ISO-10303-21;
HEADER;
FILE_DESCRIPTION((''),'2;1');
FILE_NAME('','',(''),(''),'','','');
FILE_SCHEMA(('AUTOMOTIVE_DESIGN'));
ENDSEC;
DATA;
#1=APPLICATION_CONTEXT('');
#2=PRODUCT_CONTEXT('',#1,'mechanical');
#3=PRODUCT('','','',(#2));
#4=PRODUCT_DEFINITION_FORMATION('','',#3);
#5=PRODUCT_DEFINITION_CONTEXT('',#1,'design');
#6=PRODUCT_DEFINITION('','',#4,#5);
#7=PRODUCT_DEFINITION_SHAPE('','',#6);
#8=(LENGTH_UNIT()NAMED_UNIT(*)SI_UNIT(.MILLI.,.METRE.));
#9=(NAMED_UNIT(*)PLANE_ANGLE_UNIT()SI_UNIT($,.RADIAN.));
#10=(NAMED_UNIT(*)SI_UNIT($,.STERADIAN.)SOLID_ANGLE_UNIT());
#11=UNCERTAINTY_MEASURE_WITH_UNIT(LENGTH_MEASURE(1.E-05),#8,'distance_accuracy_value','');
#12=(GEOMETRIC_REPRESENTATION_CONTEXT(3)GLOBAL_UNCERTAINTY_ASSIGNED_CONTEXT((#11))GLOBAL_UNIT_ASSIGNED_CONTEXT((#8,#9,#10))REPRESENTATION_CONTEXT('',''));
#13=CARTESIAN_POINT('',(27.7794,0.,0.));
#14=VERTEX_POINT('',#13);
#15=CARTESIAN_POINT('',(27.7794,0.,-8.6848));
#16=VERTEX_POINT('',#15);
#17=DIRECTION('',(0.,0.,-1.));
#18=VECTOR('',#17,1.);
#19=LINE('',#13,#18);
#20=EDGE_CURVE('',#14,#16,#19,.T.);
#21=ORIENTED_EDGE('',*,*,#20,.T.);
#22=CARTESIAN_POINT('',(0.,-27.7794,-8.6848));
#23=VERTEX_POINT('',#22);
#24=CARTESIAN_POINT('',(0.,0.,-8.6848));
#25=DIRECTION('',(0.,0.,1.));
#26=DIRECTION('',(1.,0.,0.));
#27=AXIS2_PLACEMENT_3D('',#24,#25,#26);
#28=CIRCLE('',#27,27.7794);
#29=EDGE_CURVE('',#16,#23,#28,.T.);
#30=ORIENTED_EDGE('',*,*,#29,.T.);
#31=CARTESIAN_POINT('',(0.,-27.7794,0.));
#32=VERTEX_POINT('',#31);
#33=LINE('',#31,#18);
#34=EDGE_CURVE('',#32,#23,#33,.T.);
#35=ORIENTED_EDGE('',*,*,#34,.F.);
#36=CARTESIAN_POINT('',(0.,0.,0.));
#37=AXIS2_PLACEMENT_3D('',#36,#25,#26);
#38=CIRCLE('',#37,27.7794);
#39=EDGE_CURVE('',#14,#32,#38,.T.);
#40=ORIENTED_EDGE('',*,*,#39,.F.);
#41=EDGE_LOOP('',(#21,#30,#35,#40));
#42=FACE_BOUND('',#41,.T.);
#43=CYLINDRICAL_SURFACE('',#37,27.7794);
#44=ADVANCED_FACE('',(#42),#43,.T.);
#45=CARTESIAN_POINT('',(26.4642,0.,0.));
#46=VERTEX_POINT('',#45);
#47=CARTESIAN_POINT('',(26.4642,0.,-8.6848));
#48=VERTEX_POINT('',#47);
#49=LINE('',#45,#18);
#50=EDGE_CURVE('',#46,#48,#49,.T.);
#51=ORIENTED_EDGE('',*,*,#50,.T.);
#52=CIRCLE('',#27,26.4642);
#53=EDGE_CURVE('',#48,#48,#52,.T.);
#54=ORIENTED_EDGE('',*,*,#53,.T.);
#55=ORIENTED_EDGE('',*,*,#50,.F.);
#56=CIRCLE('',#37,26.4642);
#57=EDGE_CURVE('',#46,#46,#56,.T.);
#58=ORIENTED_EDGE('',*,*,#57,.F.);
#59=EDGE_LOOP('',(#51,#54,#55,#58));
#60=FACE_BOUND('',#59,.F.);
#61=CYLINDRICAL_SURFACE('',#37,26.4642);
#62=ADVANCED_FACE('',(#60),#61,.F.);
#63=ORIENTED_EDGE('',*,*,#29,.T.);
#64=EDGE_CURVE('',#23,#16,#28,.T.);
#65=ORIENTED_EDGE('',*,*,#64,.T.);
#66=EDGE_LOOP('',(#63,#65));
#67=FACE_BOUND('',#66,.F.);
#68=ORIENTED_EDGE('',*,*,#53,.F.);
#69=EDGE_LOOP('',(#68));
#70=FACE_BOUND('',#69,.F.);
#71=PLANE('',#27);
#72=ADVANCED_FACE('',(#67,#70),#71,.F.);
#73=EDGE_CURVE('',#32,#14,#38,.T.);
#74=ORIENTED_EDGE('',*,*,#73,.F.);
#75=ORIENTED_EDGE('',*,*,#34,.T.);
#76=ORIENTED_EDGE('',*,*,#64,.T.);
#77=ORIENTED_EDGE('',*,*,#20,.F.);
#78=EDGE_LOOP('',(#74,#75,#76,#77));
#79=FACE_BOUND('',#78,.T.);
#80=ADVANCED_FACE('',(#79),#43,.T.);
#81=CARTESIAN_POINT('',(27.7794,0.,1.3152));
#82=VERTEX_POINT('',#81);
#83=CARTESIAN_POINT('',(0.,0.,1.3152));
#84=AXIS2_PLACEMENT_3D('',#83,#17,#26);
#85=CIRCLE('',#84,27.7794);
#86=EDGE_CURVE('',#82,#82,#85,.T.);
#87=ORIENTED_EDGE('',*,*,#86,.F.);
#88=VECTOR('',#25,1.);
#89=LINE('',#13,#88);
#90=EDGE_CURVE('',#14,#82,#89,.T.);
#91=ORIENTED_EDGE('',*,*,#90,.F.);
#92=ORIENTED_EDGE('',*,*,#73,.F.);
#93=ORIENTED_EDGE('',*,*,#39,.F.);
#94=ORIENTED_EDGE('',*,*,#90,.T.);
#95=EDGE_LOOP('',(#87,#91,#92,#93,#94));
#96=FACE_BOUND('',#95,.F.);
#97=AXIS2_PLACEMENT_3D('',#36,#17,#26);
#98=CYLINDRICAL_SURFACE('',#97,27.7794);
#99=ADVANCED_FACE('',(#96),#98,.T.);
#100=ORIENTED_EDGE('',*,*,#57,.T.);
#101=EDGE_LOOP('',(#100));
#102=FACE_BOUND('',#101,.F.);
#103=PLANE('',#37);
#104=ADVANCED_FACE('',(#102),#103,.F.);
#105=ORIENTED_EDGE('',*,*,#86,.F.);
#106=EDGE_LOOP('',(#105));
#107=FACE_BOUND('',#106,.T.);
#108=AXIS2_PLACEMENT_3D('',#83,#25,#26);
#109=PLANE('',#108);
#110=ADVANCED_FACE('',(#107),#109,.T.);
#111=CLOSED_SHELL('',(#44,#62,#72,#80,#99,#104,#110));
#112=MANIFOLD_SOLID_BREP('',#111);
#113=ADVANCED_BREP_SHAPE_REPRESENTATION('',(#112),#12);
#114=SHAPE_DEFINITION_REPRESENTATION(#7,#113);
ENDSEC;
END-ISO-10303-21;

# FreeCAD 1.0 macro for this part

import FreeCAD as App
import Part
import Sketcher

V = App.Vector

doc = App.newDocument("Part")
body = doc.addObject("PartDesign::Body", "Body")

sketch1 = doc.addObject("Sketcher::SketchObject", "Sketch")
body.addObject(sketch1)
sketch1.AttachmentSupport = (doc.XY_Plane, [""])
sketch1.MapMode = "FlatFace"
sketch1.addGeometry(Part.Circle(V(0, 0, 0), V(0, 0, 1), 28), False)
sketch1.addConstraint(Sketcher.Constraint("Coincident", 0, 3, -1, 1))
sketch1.addConstraint(Sketcher.Constraint("Diameter", 0, 55.5588))
pad1 = doc.addObject("PartDesign::Pad", "Pad")
body.addObject(pad1)
pad1.Profile = sketch1
pad1.Length = 1.3152

sketch2 = doc.addObject("Sketcher::SketchObject", "Sketch001")
body.addObject(sketch2)
sketch2.AttachmentSupport = (doc.XY_Plane, [""])
sketch2.MapMode = "FlatFace"
sketch2.addGeometry(Part.Circle(V(0, 0, 0), V(0, 0, 1), 28), False)
sketch2.addGeometry(Part.Circle(V(0, 0, 0), V(0, 0, 1), 26), False)
sketch2.addConstraint(Sketcher.Constraint("Coincident", 0, 3, -1, 1))
sketch2.addConstraint(Sketcher.Constraint("Coincident", 1, 3, -1, 1))
sketch2.addConstraint(Sketcher.Constraint("Diameter", 0, 55.5588))
sketch2.addConstraint(Sketcher.Constraint("Diameter", 1, 52.9284))
pad2 = doc.addObject("PartDesign::Pad", "Pad001")
body.addObject(pad2)
pad2.Profile = sketch2
pad2.Length = 8.6848
pad2.Reversed = True

doc.recompute()
